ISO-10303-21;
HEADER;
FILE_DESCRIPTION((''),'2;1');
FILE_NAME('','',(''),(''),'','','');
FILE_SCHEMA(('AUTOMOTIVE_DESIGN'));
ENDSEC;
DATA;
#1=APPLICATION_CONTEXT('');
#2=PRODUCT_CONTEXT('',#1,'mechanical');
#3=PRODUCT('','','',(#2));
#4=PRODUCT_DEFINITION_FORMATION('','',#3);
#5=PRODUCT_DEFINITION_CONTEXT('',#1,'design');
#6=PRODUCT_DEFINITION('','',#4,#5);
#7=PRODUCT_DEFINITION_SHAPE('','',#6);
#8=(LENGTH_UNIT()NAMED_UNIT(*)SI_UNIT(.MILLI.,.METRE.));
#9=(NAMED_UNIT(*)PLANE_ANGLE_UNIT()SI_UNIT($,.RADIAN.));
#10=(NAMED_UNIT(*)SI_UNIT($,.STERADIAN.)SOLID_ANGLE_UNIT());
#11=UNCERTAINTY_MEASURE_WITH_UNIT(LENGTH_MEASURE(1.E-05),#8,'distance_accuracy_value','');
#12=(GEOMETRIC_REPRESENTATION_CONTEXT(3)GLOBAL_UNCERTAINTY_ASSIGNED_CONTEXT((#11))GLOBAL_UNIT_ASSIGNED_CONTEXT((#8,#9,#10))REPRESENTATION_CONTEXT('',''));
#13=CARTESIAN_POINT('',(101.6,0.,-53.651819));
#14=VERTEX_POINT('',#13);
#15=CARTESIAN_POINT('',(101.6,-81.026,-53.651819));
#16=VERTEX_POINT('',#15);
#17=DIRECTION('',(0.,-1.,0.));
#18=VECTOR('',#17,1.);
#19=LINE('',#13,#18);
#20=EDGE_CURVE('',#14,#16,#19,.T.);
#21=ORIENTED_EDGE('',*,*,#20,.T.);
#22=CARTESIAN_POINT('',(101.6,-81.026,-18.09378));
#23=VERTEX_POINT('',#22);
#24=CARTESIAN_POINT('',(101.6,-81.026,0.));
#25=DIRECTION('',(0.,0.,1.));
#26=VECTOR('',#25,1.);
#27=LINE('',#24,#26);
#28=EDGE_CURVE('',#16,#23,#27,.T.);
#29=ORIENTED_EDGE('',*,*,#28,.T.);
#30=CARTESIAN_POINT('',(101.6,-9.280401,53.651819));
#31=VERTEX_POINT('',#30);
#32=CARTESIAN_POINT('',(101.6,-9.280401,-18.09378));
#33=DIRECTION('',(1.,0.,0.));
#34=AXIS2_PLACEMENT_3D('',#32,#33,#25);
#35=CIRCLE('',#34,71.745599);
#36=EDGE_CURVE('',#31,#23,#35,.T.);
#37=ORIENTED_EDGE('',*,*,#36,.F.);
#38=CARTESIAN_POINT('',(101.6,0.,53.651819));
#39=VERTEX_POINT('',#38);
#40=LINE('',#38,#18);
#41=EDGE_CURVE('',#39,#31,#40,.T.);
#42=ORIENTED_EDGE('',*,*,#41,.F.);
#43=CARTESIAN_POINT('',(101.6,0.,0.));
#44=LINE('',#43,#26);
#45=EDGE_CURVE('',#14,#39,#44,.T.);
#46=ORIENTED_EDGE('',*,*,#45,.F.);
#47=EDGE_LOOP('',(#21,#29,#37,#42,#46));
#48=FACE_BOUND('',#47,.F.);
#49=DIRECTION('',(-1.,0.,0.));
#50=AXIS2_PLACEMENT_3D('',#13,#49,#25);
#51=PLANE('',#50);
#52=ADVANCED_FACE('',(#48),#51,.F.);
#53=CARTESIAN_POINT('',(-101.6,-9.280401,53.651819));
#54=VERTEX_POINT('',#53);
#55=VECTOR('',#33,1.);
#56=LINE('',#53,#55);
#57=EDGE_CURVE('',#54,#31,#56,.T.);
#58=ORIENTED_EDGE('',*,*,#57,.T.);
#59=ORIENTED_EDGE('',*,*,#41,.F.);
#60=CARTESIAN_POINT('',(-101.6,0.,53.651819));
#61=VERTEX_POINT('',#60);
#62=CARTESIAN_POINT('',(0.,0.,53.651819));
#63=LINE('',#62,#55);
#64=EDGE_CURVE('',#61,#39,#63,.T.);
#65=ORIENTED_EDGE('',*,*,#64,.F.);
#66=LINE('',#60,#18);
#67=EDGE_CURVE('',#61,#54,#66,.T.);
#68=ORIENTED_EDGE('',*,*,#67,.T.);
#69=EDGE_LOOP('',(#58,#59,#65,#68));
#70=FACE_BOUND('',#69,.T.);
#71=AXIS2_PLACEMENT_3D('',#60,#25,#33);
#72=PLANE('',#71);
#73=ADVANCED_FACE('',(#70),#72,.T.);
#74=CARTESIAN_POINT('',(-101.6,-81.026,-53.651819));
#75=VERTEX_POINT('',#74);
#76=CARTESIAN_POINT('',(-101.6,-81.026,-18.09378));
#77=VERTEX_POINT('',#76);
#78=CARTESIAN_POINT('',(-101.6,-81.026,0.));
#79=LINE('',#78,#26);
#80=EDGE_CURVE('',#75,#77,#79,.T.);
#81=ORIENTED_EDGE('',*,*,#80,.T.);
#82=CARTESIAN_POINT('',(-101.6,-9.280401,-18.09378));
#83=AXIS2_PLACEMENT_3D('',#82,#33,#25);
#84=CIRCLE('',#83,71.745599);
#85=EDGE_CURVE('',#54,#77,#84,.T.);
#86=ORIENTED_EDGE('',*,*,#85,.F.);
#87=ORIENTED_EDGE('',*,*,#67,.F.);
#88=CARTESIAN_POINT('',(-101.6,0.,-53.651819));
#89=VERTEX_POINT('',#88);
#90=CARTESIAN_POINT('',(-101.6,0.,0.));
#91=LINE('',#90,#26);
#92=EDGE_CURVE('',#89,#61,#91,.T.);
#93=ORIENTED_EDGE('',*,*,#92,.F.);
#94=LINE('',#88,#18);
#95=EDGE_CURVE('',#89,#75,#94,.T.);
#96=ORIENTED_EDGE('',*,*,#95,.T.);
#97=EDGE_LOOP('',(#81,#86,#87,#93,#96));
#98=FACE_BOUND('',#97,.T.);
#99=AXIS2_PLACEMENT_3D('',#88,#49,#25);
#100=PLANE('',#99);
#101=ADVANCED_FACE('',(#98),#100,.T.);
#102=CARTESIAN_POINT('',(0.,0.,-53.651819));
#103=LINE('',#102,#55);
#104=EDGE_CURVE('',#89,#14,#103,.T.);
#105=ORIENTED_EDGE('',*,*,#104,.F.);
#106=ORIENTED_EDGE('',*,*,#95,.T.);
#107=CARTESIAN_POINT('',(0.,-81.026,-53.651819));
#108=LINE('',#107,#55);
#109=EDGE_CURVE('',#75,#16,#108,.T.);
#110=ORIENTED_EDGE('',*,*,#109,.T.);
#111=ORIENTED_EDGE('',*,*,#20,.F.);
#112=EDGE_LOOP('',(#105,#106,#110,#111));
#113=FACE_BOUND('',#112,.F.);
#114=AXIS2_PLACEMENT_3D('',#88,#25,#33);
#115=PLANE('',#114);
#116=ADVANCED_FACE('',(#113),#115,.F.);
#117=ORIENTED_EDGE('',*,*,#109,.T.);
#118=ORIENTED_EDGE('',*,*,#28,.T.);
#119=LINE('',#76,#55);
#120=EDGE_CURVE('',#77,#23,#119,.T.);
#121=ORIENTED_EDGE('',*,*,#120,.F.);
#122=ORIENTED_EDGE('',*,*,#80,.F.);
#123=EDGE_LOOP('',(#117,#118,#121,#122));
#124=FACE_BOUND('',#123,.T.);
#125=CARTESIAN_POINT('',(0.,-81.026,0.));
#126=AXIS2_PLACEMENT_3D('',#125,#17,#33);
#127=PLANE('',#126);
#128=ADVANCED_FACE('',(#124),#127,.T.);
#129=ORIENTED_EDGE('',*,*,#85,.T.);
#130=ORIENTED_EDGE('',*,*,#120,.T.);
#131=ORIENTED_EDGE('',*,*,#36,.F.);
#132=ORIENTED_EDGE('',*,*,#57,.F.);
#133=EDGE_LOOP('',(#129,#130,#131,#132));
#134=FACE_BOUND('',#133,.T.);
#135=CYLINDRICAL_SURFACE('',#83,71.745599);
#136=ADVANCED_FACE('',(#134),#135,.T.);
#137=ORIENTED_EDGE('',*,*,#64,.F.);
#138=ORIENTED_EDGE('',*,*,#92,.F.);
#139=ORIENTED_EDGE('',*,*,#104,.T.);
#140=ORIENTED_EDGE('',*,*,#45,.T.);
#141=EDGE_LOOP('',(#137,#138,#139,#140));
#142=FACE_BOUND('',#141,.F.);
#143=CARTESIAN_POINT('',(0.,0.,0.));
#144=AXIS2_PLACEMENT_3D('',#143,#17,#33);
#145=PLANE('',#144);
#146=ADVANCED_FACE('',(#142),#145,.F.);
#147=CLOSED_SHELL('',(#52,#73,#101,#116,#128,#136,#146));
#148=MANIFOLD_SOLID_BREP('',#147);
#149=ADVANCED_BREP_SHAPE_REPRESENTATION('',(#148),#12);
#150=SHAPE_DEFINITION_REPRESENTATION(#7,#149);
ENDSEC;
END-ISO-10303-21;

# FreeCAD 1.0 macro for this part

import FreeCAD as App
import Part
import Sketcher
Q = App.Units.Quantity


def edges_at(feature, points):
    """Names of the edges that pass closest to the given points."""
    edges = feature.Shape.Edges
    near = lambda p: min(range(len(edges)), key=lambda i: edges[i].distToShape(Part.Vertex(*p))[0])
    return sorted({f"Edge{near(p) + 1}" for p in points})


def add_polygon(sketch, points):
    """Adds a closed chain of lines whose ends are joined by coincident constraints."""
    first, n = sketch.GeometryCount, len(points)
    for a, b in zip(points, points[1:] + points[:1]):
        sketch.addGeometry(Part.LineSegment(App.Vector(*a, 0), App.Vector(*b, 0)), False)
    for i in range(n):
        sketch.addConstraint(Sketcher.Constraint("Coincident", first + i, 2, first + (i + 1) % n, 1))

doc = App.newDocument("Part")
body = doc.addObject("PartDesign::Body", "Body")

# Sketch on XZ plane
sketch1 = body.newObject("Sketcher::SketchObject", "Sketch")
sketch1.AttachmentSupport = (doc.getObject("XZ_Plane"), [""])
sketch1.MapMode = "FlatFace"
add_polygon(sketch1, [(-102, 54), (-102, -54), (102, -54), (102, 54)])  # lines 0-3
sketch1.addConstraint(Sketcher.Constraint("Vertical", 0))
sketch1.addConstraint(Sketcher.Constraint("Horizontal", 1))
sketch1.addConstraint(Sketcher.Constraint("Vertical", 2))
sketch1.addConstraint(Sketcher.Constraint("Horizontal", 3))
sketch1.addConstraint(Sketcher.Constraint("Symmetric", 0, 2, 2, 2, -1, 1))
sketch1.addConstraint(Sketcher.Constraint("DistanceX", 1, 1, 1, 2, Q("8 in")))
sketch1.addConstraint(Sketcher.Constraint("DistanceY", 0, 2, 0, 1, 107.303638))
pad1 = body.newObject("PartDesign::Pad", "Pad")
pad1.Profile = sketch1
pad1.Length = Q("3.19 in")
doc.recompute()

fillet = body.newObject("PartDesign::Fillet", "Fillet")
fillet.Base = (pad1, edges_at(pad1, [(0, -81.026, 53.652)]))
fillet.Radius = 71.745599

doc.recompute()
